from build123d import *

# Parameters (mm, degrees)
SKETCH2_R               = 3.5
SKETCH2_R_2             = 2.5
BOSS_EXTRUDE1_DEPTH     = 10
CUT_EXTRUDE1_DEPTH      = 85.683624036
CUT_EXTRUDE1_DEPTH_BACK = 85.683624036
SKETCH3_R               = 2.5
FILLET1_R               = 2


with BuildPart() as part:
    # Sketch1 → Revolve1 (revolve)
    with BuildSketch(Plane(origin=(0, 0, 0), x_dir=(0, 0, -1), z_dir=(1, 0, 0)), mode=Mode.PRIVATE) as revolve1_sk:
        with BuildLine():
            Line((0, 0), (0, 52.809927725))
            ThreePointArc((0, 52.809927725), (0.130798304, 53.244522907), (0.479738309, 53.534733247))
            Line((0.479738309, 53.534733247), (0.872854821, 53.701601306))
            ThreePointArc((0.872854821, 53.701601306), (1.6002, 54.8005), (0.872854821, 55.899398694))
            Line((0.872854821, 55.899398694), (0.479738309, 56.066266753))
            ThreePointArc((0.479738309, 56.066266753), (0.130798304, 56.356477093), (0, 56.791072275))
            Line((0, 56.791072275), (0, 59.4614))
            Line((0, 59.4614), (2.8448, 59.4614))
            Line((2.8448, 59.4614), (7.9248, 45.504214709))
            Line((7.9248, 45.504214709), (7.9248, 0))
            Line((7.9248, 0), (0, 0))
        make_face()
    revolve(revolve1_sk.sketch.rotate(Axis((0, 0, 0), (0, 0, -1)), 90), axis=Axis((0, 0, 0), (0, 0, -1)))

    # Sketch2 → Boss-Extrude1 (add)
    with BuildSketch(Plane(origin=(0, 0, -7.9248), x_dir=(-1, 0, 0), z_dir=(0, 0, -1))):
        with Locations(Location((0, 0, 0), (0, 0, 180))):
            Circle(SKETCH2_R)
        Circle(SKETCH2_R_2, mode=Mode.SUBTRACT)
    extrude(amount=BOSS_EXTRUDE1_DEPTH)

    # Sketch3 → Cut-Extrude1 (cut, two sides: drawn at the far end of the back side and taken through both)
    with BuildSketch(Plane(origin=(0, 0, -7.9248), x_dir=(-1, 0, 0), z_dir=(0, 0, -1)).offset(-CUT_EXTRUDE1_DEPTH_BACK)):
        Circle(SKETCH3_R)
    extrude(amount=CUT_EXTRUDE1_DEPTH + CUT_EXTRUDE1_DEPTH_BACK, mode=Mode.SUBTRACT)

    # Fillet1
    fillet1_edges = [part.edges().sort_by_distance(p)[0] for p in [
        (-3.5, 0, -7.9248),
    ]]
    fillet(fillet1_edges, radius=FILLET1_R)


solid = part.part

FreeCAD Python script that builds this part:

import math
import FreeCAD as App
import Part
import Sketcher
Q = App.Units.Quantity


def edges_at(feature, points):
    """Names of the edges that pass closest to the given points."""
    edges = feature.Shape.Edges
    near = lambda p: min(range(len(edges)), key=lambda i: edges[i].distToShape(Part.Vertex(*p))[0])
    return sorted({f"Edge{near(p) + 1}" for p in points})

doc = App.newDocument("Part")
body = doc.addObject("PartDesign::Body", "Body")

# Sketch on YZ plane
sketch1 = body.newObject("Sketcher::SketchObject", "Sketch")
sketch1.AttachmentSupport = (doc.getObject("YZ_Plane"), [""])
sketch1.MapMode = "FlatFace"
sketch1.addGeometry(Part.LineSegment(App.Vector(52.809928, 0, 0), App.Vector(0, 0, 0)), False)
sketch1.addGeometry(Part.LineSegment(App.Vector(0, 0, 0), App.Vector(0, -7.9248, 0)), False)
sketch1.addGeometry(Part.LineSegment(App.Vector(0, -7.9248, 0), App.Vector(45.504215, -7.9248, 0)), False)
sketch1.addGeometry(Part.LineSegment(App.Vector(45.504215, -7.9248, 0), App.Vector(59.4614, -2.8448, 0)), False)
sketch1.addGeometry(Part.LineSegment(App.Vector(59.4614, -2.8448, 0), App.Vector(59.4614, 0, 0)), False)
sketch1.addGeometry(Part.LineSegment(App.Vector(59.4614, 0, 0), App.Vector(56.791072, 0, 0)), False)
sketch1.addGeometry(Part.ArcOfCircle(Part.Circle(App.Vector(56.791072, -0.7874, 0), App.Vector(0, 0, 1), 0.7874), math.radians(90), math.radians(157)), False)
sketch1.addGeometry(Part.LineSegment(App.Vector(56.066267, -0.479738, 0), App.Vector(55.899399, -0.872855, 0)), False)
sketch1.addGeometry(Part.ArcOfCircle(Part.Circle(App.Vector(54.8005, -0.4064, 0), App.Vector(0, 0, 1), 1.1938), math.radians(-157), math.radians(-23)), False)
sketch1.addGeometry(Part.LineSegment(App.Vector(53.701601, -0.872855, 0), App.Vector(53.534733, -0.479738, 0)), False)
sketch1.addGeometry(Part.ArcOfCircle(Part.Circle(App.Vector(52.809928, -0.7874, 0), App.Vector(0, 0, 1), 0.7874), math.radians(23), math.radians(90)), False)
sketch1.addConstraint(Sketcher.Constraint("Coincident", 0, 2, 1, 1))
sketch1.addConstraint(Sketcher.Constraint("Coincident", 1, 2, 2, 1))
sketch1.addConstraint(Sketcher.Constraint("Coincident", 2, 2, 3, 1))
sketch1.addConstraint(Sketcher.Constraint("Coincident", 3, 2, 4, 1))
sketch1.addConstraint(Sketcher.Constraint("Coincident", 4, 2, 5, 1))
sketch1.addConstraint(Sketcher.Constraint("Tangent", 5, 2, 6, 1))
sketch1.addConstraint(Sketcher.Constraint("Tangent", 6, 2, 7, 1))
sketch1.addConstraint(Sketcher.Constraint("Tangent", 7, 2, 8, 2))
sketch1.addConstraint(Sketcher.Constraint("Tangent", 8, 1, 9, 1))
sketch1.addConstraint(Sketcher.Constraint("Tangent", 9, 2, 10, 1))
sketch1.addConstraint(Sketcher.Constraint("Tangent", 10, 2, 0, 1))
sketch1.addConstraint(Sketcher.Constraint("Horizontal", 0))
sketch1.addConstraint(Sketcher.Constraint("Vertical", 1))
sketch1.addConstraint(Sketcher.Constraint("Horizontal", 2))
sketch1.addConstraint(Sketcher.Constraint("Vertical", 4))
sketch1.addConstraint(Sketcher.Constraint("Horizontal", 5))
sketch1.addConstraint(Sketcher.Constraint("Coincident", 0, 2, -1, 1))
sketch1.addConstraint(Sketcher.Constraint("Equal", 6, 10))
sketch1.addConstraint(Sketcher.Constraint("PointOnObject", 4, 2, -1))
sketch1.addConstraint(Sketcher.Constraint("Horizontal", 7, 2, 8, 1))
sketch1.addConstraint(Sketcher.Constraint("Angle", 3, Q("20 deg")))
sketch1.addConstraint(Sketcher.Constraint("Angle", 7, Q("-113 deg")))
sketch1.addConstraint(Sketcher.Constraint("Radius", 6, Q("0.7874 mm")))
sketch1.addConstraint(Sketcher.Constraint("Radius", 8, Q("1.1938 mm")))
sketch1.addConstraint(Sketcher.Constraint("DistanceY", 2, 2, 3, 2, Q("5.08 mm")))
sketch1.addConstraint(Sketcher.Constraint("DistanceY", 1, 2, 1, 1, Q("7.9248 mm")))
sketch1.addConstraint(Sketcher.Constraint("DistanceY", 6, 3, 8, 3, Q("0.381 mm")))
sketch1.addConstraint(Sketcher.Constraint("DistanceX", -1, 1, 8, 3, Q("54.8005 mm")))
sketch1.addConstraint(Sketcher.Constraint("DistanceX", -1, 1, 3, 2, Q("59.4614 mm")))
revolution = body.newObject("PartDesign::Revolution", "Revolution")
revolution.Profile = sketch1
revolution.ReferenceAxis = (sketch1, ["V_Axis"])
revolution.Angle = 360

# Sketch on XY plane
sketch2 = body.newObject("Sketcher::SketchObject", "Sketch001")
sketch2.AttachmentSupport = (doc.getObject("XY_Plane"), [""])
sketch2.MapMode = "FlatFace"
sketch2.AttachmentOffset = App.Placement(App.Vector(0, 0, -7.9248), App.Rotation())
sketch2.addGeometry(Part.Circle(App.Vector(0, 0, 0), App.Vector(0, 0, 1), 3.5), False)
sketch2.addGeometry(Part.Circle(App.Vector(0, 0, 0), App.Vector(0, 0, 1), 2.5), False)
sketch2.addConstraint(Sketcher.Constraint("Coincident", 0, 3, -1, 1))
sketch2.addConstraint(Sketcher.Constraint("Coincident", 1, 3, -1, 1))
sketch2.addConstraint(Sketcher.Constraint("Diameter", 0, Q("7 mm")))
sketch2.addConstraint(Sketcher.Constraint("Diameter", 1, Q("5 mm")))
pad1 = body.newObject("PartDesign::Pad", "Pad")
pad1.Profile = sketch2
pad1.Length = 10
pad1.Reversed = True

# Sketch on XY plane
sketch3 = body.newObject("Sketcher::SketchObject", "Sketch002")
sketch3.AttachmentSupport = (doc.getObject("XY_Plane"), [""])
sketch3.MapMode = "FlatFace"
sketch3.AttachmentOffset = App.Placement(App.Vector(0, 0, -7.9248), App.Rotation())
sketch3.addGeometry(Part.Circle(App.Vector(0, 0, 0), App.Vector(0, 0, 1), 2.5), False)
sketch3.addConstraint(Sketcher.Constraint("Coincident", 0, 3, -1, 1))
sketch3.addConstraint(Sketcher.Constraint("Diameter", 0, Q("5 mm")))
pocket1 = body.newObject("PartDesign::Pocket", "Pocket")
pocket1.Profile = sketch3
pocket1.Type = "ThroughAll"
pocket1.Midplane = True
doc.recompute()

fillet = body.newObject("PartDesign::Fillet", "Fillet")
fillet.Base = (pocket1, edges_at(pocket1, [(-3.5, 0, -7.925)]))
fillet.Radius = 2

doc.recompute()
